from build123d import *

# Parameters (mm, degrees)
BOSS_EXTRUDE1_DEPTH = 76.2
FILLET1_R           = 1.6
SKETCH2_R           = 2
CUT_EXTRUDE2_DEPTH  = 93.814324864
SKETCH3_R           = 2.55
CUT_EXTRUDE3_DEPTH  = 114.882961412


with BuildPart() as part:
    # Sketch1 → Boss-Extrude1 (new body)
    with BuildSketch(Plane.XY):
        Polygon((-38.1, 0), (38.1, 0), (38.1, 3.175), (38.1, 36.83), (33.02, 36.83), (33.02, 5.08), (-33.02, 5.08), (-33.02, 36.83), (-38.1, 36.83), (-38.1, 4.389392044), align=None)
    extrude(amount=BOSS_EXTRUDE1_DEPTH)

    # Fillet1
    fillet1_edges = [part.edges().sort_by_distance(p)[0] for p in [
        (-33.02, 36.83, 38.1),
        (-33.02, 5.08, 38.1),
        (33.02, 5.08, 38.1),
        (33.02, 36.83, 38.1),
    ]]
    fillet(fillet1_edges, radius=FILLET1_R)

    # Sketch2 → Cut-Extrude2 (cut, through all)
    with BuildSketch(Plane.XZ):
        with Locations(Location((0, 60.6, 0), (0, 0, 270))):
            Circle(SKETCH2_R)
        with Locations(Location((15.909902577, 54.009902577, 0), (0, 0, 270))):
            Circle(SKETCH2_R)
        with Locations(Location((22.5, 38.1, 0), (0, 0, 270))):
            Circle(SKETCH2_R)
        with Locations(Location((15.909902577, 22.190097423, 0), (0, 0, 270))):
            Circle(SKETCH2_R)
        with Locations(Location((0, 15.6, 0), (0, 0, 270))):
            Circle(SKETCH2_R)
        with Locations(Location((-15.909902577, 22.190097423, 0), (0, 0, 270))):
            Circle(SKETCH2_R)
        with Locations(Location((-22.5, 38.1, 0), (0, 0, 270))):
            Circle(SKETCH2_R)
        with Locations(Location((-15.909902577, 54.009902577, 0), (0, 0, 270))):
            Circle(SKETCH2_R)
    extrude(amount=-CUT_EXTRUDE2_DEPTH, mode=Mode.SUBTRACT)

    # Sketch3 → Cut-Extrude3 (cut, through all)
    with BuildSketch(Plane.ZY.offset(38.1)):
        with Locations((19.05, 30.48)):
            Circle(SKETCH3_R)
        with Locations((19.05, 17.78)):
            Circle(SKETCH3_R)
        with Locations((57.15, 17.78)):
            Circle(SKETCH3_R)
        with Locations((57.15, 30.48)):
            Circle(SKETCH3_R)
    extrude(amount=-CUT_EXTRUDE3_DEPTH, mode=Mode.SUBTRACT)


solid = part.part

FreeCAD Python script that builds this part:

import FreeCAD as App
import Part
import Sketcher
Q = App.Units.Quantity


def edges_at(feature, points):
    """Names of the edges that pass closest to the given points."""
    edges = feature.Shape.Edges
    near = lambda p: min(range(len(edges)), key=lambda i: edges[i].distToShape(Part.Vertex(*p))[0])
    return sorted({f"Edge{near(p) + 1}" for p in points})


def add_polygon(sketch, points):
    """Adds a closed chain of lines whose ends are joined by coincident constraints."""
    first, n = sketch.GeometryCount, len(points)
    for a, b in zip(points, points[1:] + points[:1]):
        sketch.addGeometry(Part.LineSegment(App.Vector(*a, 0), App.Vector(*b, 0)), False)
    for i in range(n):
        sketch.addConstraint(Sketcher.Constraint("Coincident", first + i, 2, first + (i + 1) % n, 1))

doc = App.newDocument("Part")
body = doc.addObject("PartDesign::Body", "Body")

# Sketch on XY plane
sketch1 = doc.addObject("Sketcher::SketchObject", "Sketch")
body.addObject(sketch1)
sketch1.AttachmentSupport = (doc.XY_Plane, [""])
sketch1.MapMode = "FlatFace"
add_polygon(sketch1, [(-38.1, 0), (38.1, 0), (38.1, 36.83), (33.02, 36.83), (33.02, 5.08), (-33.02, 5.08), (-33.02, 36.83), (-38.1, 36.83)])  # lines 0-7
sketch1.addConstraint([
    Sketcher.Constraint("Horizontal", 0),
    Sketcher.Constraint("Vertical", 1),
    Sketcher.Constraint("Horizontal", 2),
    Sketcher.Constraint("Vertical", 3),
    Sketcher.Constraint("Horizontal", 4),
    Sketcher.Constraint("Vertical", 5),
    Sketcher.Constraint("Horizontal", 6),
    Sketcher.Constraint("Vertical", 7),
    Sketcher.Constraint("Symmetric", 0, 2, 7, 2, -1, 1),
    Sketcher.Constraint("Symmetric", 2, 2, 5, 2, -2),
    Sketcher.Constraint("DistanceX", 0, 1, 0, 2, Q("3 in")),
    Sketcher.Constraint("DistanceX", 2, 2, 2, 1, Q("0.2 in")),
    Sketcher.Constraint("DistanceY", 1, 1, 1, 2, Q("1.45 in")),
    Sketcher.Constraint("DistanceY", 3, 2, 3, 1, Q("1.25 in")),
])
pad1 = doc.addObject("PartDesign::Pad", "Pad")
body.addObject(pad1)
pad1.Profile = sketch1
pad1.Length = Q("3 in")
doc.recompute()

fillet = doc.addObject("PartDesign::Fillet", "Fillet")
body.addObject(fillet)
fillet.Base = (pad1, edges_at(pad1, [
    (-33.02, 36.83, 38.1),
    (-33.02, 5.08, 38.1),
    (33.02, 5.08, 38.1),
    (33.02, 36.83, 38.1),
]))
fillet.Radius = 1.6

# Sketch on XZ plane
sketch2 = doc.addObject("Sketcher::SketchObject", "Sketch001")
body.addObject(sketch2)
sketch2.AttachmentSupport = (doc.XZ_Plane, [""])
sketch2.MapMode = "FlatFace"
sketch2.addGeometry([
    Part.Circle(App.Vector(0, 60.6, 0), App.Vector(0, 0, 1), 2),  # 0
    Part.Circle(App.Vector(15.909903, 54.009903, 0), App.Vector(0, 0, 1), 2),  # 1
    Part.Circle(App.Vector(22.5, 38.1, 0), App.Vector(0, 0, 1), 2),  # 2
    Part.Circle(App.Vector(15.909903, 22.190097, 0), App.Vector(0, 0, 1), 2),  # 3
    Part.Circle(App.Vector(0, 15.6, 0), App.Vector(0, 0, 1), 2),  # 4
    Part.Circle(App.Vector(-15.909903, 22.190097, 0), App.Vector(0, 0, 1), 2),  # 5
    Part.Circle(App.Vector(-22.5, 38.1, 0), App.Vector(0, 0, 1), 2),  # 6
    Part.Circle(App.Vector(-15.909903, 54.009903, 0), App.Vector(0, 0, 1), 2),  # 7
], False)
sketch2.addConstraint([
    Sketcher.Constraint("Equal", 0, 1),
    Sketcher.Constraint("Equal", 1, 2),
    Sketcher.Constraint("Equal", 2, 3),
    Sketcher.Constraint("Equal", 3, 4),
    Sketcher.Constraint("Equal", 4, 5),
    Sketcher.Constraint("Equal", 5, 6),
    Sketcher.Constraint("Equal", 6, 7),
    Sketcher.Constraint("Symmetric", 3, 3, 5, 3, -2),
    Sketcher.Constraint("Symmetric", 2, 3, 6, 3, -2),
    Sketcher.Constraint("Symmetric", 1, 3, 7, 3, -2),
    Sketcher.Constraint("PointOnObject", 0, 3, -2),
    Sketcher.Constraint("PointOnObject", 4, 3, -2),
    Sketcher.Constraint("Vertical", 1, 3, 3, 3),
    Sketcher.Constraint("DistanceY", -1, 1, 2, 3, Q("1.5 in")),
    Sketcher.Constraint("Diameter", 0, 4.0),
    Sketcher.Constraint("DistanceY", -1, 1, 0, 3, 60.6),
    Sketcher.Constraint("DistanceX", -1, 1, 2, 3, 22.5),
    Sketcher.Constraint("DistanceY", -1, 1, 4, 3, 15.6),
    Sketcher.Constraint("DistanceX", -1, 1, 1, 3, 15.909903),
    Sketcher.Constraint("DistanceY", -1, 1, 1, 3, 54.009903),
    Sketcher.Constraint("DistanceY", -1, 1, 3, 3, 22.190097),
])
pocket1 = doc.addObject("PartDesign::Pocket", "Pocket")
body.addObject(pocket1)
pocket1.Profile = sketch2
pocket1.Type = "ThroughAll"

# Sketch on YZ plane
sketch3 = doc.addObject("Sketcher::SketchObject", "Sketch002")
body.addObject(sketch3)
sketch3.AttachmentSupport = (doc.YZ_Plane, [""])
sketch3.MapMode = "FlatFace"
sketch3.AttachmentOffset = App.Placement(App.Vector(0, 0, -1.5 * 25.4), App.Rotation())
sketch3.addGeometry([
    Part.Circle(App.Vector(30.48, 19.05, 0), App.Vector(0, 0, 1), 2.55),
    Part.Circle(App.Vector(17.78, 19.05, 0), App.Vector(0, 0, 1), 2.55),
    Part.Circle(App.Vector(17.78, 57.15, 0), App.Vector(0, 0, 1), 2.55),
    Part.Circle(App.Vector(30.48, 57.15, 0), App.Vector(0, 0, 1), 2.55),
], False)
sketch3.addConstraint([
    Sketcher.Constraint("Equal", 0, 1),
    Sketcher.Constraint("Equal", 1, 2),
    Sketcher.Constraint("Equal", 2, 3),
    Sketcher.Constraint("Horizontal", 0, 3, 1, 3),
    Sketcher.Constraint("Horizontal", 2, 3, 3, 3),
    Sketcher.Constraint("Vertical", 1, 3, 2, 3),
    Sketcher.Constraint("Vertical", 0, 3, 3, 3),
    Sketcher.Constraint("DistanceX", -1, 1, 0, 3, Q("1.2 in")),
    Sketcher.Constraint("DistanceX", -1, 1, 1, 3, Q("0.7 in")),
    Sketcher.Constraint("DistanceY", 1, 3, 2, 3, Q("1.5 in")),
    Sketcher.Constraint("Diameter", 0, 5.1),
    Sketcher.Constraint("DistanceY", -1, 1, 0, 3, Q("0.75 in")),
])
pocket2 = doc.addObject("PartDesign::Pocket", "Pocket001")
body.addObject(pocket2)
pocket2.Profile = sketch3
pocket2.Type = "ThroughAll"
pocket2.Reversed = True

doc.recompute()
